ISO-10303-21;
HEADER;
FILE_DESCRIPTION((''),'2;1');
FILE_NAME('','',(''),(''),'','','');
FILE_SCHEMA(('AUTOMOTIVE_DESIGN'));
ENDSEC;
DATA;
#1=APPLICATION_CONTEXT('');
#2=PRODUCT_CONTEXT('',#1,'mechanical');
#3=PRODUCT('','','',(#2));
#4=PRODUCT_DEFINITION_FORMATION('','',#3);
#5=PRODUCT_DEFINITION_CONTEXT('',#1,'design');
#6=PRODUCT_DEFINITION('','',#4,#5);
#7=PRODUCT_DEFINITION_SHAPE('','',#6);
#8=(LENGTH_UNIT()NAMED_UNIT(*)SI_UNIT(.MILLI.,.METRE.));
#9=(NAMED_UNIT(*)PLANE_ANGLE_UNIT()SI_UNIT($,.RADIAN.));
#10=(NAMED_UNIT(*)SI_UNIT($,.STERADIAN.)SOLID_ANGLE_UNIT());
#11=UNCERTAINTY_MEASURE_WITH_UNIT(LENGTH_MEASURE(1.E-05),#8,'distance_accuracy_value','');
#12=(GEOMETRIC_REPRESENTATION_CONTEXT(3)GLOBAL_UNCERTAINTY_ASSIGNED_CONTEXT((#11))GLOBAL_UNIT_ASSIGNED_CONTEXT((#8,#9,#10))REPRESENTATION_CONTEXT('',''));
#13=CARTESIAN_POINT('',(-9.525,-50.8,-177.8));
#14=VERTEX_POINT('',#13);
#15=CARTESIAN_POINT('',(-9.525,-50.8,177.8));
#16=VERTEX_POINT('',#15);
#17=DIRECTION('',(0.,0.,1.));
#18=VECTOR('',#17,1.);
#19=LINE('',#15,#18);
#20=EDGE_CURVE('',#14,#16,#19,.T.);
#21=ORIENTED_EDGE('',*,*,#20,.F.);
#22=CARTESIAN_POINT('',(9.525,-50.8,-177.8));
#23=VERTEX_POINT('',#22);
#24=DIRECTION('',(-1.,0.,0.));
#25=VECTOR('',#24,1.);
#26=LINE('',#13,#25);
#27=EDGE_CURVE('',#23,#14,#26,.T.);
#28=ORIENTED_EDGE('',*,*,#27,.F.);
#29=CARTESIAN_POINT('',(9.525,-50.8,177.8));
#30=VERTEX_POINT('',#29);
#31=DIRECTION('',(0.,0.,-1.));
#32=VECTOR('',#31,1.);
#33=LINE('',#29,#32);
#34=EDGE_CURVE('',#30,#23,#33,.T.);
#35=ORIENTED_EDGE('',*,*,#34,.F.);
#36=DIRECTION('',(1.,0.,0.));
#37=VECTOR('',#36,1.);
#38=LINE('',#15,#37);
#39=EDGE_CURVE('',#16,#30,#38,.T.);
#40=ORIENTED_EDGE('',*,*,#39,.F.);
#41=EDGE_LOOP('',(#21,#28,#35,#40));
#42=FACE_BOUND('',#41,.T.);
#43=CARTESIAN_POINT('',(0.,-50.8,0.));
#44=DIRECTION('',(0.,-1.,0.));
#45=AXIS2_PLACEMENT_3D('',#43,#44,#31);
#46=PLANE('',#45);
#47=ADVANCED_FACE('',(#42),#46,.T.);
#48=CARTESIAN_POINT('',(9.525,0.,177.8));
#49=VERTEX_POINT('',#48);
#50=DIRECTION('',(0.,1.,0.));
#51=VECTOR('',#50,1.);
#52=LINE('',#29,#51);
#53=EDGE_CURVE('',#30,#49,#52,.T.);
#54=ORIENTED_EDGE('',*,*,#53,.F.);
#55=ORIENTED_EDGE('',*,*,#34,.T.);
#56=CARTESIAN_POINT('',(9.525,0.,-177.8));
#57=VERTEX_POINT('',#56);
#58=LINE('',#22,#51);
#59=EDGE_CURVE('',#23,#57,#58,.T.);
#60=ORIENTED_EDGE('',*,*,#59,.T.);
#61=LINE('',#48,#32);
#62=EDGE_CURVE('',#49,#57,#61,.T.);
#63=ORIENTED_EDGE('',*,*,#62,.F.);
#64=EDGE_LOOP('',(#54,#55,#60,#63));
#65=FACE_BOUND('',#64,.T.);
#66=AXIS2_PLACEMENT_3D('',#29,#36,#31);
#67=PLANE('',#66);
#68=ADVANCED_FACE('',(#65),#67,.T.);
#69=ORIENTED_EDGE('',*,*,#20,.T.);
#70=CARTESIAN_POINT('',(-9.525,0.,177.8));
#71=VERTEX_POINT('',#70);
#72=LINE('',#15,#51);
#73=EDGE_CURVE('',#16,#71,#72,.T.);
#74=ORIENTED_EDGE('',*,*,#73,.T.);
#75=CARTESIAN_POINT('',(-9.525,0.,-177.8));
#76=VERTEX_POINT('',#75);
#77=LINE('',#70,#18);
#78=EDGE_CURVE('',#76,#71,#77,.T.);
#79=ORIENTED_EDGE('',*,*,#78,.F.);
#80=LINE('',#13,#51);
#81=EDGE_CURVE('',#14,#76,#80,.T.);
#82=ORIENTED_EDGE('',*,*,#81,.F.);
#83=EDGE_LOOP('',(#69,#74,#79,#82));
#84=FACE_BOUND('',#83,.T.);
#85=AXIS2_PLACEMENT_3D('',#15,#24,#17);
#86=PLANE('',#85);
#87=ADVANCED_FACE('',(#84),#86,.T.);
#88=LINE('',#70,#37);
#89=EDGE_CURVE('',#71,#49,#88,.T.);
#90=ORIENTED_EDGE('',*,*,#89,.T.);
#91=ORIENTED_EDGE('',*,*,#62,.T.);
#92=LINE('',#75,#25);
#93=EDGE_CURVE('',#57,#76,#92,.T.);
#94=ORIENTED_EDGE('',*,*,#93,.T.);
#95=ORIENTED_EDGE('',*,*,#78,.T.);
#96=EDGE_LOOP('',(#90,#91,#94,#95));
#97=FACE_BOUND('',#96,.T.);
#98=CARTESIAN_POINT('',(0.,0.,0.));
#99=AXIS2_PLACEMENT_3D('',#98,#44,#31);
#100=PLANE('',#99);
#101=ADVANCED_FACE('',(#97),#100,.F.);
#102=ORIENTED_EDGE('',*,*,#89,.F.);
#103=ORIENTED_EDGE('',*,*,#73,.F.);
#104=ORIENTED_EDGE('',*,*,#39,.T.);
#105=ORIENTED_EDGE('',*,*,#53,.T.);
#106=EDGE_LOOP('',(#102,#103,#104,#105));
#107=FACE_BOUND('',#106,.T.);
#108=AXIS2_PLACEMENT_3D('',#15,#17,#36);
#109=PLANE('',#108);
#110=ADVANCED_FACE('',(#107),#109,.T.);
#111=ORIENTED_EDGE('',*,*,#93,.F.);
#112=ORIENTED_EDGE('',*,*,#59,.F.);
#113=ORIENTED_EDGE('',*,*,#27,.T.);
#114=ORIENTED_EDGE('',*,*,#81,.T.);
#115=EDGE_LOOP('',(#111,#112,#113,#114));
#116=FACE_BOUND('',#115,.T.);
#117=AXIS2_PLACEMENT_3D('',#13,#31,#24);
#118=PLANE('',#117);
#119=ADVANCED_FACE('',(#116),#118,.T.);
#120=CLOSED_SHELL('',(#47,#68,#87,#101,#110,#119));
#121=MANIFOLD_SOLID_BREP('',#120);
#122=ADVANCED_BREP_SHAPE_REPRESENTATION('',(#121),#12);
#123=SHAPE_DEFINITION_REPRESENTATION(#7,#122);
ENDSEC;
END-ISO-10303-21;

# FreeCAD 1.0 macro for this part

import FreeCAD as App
import Part
import Sketcher

V = App.Vector
Q = App.Units.Quantity


def add_polygon(sketch, points):
    """Adds a closed chain of lines whose ends are joined by coincident constraints."""
    first, n = sketch.GeometryCount, len(points)
    for a, b in zip(points, points[1:] + points[:1]):
        sketch.addGeometry(Part.LineSegment(App.Vector(*a, 0), App.Vector(*b, 0)), False)
    for i in range(n):
        sketch.addConstraint(Sketcher.Constraint("Coincident", first + i, 2, first + (i + 1) % n, 1))

doc = App.newDocument("Part")
body = doc.addObject("PartDesign::Body", "Body")

sketch1 = body.newObject("Sketcher::SketchObject", "Sketch")
sketch1.AttachmentSupport = (doc.getObject("XZ_Plane"), [""])
sketch1.MapMode = "FlatFace"
add_polygon(sketch1, [(-10, -178), (-10, 178), (10, 178), (10, -178)])
sketch1.addConstraint(Sketcher.Constraint("Vertical", 0))
sketch1.addConstraint(Sketcher.Constraint("Horizontal", 1))
sketch1.addConstraint(Sketcher.Constraint("Vertical", 2))
sketch1.addConstraint(Sketcher.Constraint("Horizontal", 3))
sketch1.addConstraint(Sketcher.Constraint("Symmetric", 0, 2, 2, 2, -1, 1))
sketch1.addConstraint(Sketcher.Constraint("DistanceY", 0, 1, 0, 2, Q("14 in")))
sketch1.addConstraint(Sketcher.Constraint("DistanceX", 1, 1, 1, 2, Q("0.75 in")))
pad1 = body.newObject("PartDesign::Pad", "Pad")
pad1.Profile = sketch1
pad1.Length = Q("2 in")

doc.recompute()
